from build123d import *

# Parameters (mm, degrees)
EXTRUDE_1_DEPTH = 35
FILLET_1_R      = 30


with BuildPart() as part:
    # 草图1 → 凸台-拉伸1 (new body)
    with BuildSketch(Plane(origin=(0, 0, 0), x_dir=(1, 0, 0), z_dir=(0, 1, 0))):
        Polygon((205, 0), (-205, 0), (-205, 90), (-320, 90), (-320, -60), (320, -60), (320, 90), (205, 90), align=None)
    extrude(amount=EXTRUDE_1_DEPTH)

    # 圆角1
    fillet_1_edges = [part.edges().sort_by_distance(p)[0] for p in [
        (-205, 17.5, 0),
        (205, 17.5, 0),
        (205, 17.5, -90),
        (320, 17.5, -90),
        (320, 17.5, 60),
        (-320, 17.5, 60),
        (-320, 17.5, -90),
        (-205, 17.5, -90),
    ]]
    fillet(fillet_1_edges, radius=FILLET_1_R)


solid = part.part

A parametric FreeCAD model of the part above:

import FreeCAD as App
import Part
import Sketcher
Q = App.Units.Quantity


def edges_at(feature, points):
    """Names of the edges that pass closest to the given points."""
    edges = feature.Shape.Edges
    near = lambda p: min(range(len(edges)), key=lambda i: edges[i].distToShape(Part.Vertex(*p))[0])
    return sorted({f"Edge{near(p) + 1}" for p in points})

doc = App.newDocument("Part")
body = doc.addObject("PartDesign::Body", "Body")

sketch1 = doc.addObject("Sketcher::SketchObject", "Sketch")
body.addObject(sketch1)
sketch1.AttachmentSupport = (doc.XZ_Plane, [""])
sketch1.MapMode = "FlatFace"
sketch1.addGeometry(Part.LineSegment(App.Vector(205, 0, 0), App.Vector(-205, 0, 0)), False)
sketch1.addGeometry(Part.LineSegment(App.Vector(-205, 0, 0), App.Vector(-205, -90, 0)), False)
sketch1.addGeometry(Part.LineSegment(App.Vector(-205, -90, 0), App.Vector(-320, -90, 0)), False)
sketch1.addGeometry(Part.LineSegment(App.Vector(-320, -90, 0), App.Vector(-320, 60, 0)), False)
sketch1.addGeometry(Part.LineSegment(App.Vector(-320, 60, 0), App.Vector(320, 60, 0)), False)
sketch1.addGeometry(Part.LineSegment(App.Vector(320, 60, 0), App.Vector(320, -90, 0)), False)
sketch1.addGeometry(Part.LineSegment(App.Vector(320, -90, 0), App.Vector(205, -90, 0)), False)
sketch1.addGeometry(Part.LineSegment(App.Vector(205, -90, 0), App.Vector(205, 0, 0)), False)
sketch1.addConstraint(Sketcher.Constraint("Coincident", 0, 2, 1, 1))
sketch1.addConstraint(Sketcher.Constraint("Coincident", 1, 2, 2, 1))
sketch1.addConstraint(Sketcher.Constraint("Coincident", 2, 2, 3, 1))
sketch1.addConstraint(Sketcher.Constraint("Coincident", 3, 2, 4, 1))
sketch1.addConstraint(Sketcher.Constraint("Coincident", 4, 2, 5, 1))
sketch1.addConstraint(Sketcher.Constraint("Coincident", 5, 2, 6, 1))
sketch1.addConstraint(Sketcher.Constraint("Coincident", 6, 2, 7, 1))
sketch1.addConstraint(Sketcher.Constraint("Coincident", 7, 2, 0, 1))
sketch1.addConstraint(Sketcher.Constraint("Horizontal", 0))
sketch1.addConstraint(Sketcher.Constraint("Vertical", 1))
sketch1.addConstraint(Sketcher.Constraint("Horizontal", 2))
sketch1.addConstraint(Sketcher.Constraint("Vertical", 3))
sketch1.addConstraint(Sketcher.Constraint("Horizontal", 4))
sketch1.addConstraint(Sketcher.Constraint("Vertical", 5))
sketch1.addConstraint(Sketcher.Constraint("Horizontal", 6))
sketch1.addConstraint(Sketcher.Constraint("Vertical", 7))
sketch1.addConstraint(Sketcher.Constraint("Symmetric", 0, 2, 7, 2, -1, 1))
sketch1.addConstraint(Sketcher.Constraint("Symmetric", 2, 2, 5, 2, -2))
sketch1.addConstraint(Sketcher.Constraint("DistanceX", 0, 2, 0, 1, Q("410 mm")))
sketch1.addConstraint(Sketcher.Constraint("DistanceX", 2, 2, 2, 1, Q("115 mm")))
sketch1.addConstraint(Sketcher.Constraint("DistanceY", 1, 2, 1, 1, Q("90 mm")))
sketch1.addConstraint(Sketcher.Constraint("DistanceY", 3, 1, 3, 2, Q("150 mm")))
pad1 = doc.addObject("PartDesign::Pad", "Pad")
body.addObject(pad1)
pad1.Profile = sketch1
pad1.Length = 35
pad1.Reversed = True
doc.recompute()

fillet = doc.addObject("PartDesign::Fillet", "Fillet")
body.addObject(fillet)
fillet.Base = (pad1, edges_at(pad1, [
    (-205, 17.5, 0),
    (205, 17.5, 0),
    (205, 17.5, -90),
    (320, 17.5, -90),
    (320, 17.5, 60),
    (-320, 17.5, 60),
    (-320, 17.5, -90),
    (-205, 17.5, -90),
]))
fillet.Radius = 30

doc.recompute()
